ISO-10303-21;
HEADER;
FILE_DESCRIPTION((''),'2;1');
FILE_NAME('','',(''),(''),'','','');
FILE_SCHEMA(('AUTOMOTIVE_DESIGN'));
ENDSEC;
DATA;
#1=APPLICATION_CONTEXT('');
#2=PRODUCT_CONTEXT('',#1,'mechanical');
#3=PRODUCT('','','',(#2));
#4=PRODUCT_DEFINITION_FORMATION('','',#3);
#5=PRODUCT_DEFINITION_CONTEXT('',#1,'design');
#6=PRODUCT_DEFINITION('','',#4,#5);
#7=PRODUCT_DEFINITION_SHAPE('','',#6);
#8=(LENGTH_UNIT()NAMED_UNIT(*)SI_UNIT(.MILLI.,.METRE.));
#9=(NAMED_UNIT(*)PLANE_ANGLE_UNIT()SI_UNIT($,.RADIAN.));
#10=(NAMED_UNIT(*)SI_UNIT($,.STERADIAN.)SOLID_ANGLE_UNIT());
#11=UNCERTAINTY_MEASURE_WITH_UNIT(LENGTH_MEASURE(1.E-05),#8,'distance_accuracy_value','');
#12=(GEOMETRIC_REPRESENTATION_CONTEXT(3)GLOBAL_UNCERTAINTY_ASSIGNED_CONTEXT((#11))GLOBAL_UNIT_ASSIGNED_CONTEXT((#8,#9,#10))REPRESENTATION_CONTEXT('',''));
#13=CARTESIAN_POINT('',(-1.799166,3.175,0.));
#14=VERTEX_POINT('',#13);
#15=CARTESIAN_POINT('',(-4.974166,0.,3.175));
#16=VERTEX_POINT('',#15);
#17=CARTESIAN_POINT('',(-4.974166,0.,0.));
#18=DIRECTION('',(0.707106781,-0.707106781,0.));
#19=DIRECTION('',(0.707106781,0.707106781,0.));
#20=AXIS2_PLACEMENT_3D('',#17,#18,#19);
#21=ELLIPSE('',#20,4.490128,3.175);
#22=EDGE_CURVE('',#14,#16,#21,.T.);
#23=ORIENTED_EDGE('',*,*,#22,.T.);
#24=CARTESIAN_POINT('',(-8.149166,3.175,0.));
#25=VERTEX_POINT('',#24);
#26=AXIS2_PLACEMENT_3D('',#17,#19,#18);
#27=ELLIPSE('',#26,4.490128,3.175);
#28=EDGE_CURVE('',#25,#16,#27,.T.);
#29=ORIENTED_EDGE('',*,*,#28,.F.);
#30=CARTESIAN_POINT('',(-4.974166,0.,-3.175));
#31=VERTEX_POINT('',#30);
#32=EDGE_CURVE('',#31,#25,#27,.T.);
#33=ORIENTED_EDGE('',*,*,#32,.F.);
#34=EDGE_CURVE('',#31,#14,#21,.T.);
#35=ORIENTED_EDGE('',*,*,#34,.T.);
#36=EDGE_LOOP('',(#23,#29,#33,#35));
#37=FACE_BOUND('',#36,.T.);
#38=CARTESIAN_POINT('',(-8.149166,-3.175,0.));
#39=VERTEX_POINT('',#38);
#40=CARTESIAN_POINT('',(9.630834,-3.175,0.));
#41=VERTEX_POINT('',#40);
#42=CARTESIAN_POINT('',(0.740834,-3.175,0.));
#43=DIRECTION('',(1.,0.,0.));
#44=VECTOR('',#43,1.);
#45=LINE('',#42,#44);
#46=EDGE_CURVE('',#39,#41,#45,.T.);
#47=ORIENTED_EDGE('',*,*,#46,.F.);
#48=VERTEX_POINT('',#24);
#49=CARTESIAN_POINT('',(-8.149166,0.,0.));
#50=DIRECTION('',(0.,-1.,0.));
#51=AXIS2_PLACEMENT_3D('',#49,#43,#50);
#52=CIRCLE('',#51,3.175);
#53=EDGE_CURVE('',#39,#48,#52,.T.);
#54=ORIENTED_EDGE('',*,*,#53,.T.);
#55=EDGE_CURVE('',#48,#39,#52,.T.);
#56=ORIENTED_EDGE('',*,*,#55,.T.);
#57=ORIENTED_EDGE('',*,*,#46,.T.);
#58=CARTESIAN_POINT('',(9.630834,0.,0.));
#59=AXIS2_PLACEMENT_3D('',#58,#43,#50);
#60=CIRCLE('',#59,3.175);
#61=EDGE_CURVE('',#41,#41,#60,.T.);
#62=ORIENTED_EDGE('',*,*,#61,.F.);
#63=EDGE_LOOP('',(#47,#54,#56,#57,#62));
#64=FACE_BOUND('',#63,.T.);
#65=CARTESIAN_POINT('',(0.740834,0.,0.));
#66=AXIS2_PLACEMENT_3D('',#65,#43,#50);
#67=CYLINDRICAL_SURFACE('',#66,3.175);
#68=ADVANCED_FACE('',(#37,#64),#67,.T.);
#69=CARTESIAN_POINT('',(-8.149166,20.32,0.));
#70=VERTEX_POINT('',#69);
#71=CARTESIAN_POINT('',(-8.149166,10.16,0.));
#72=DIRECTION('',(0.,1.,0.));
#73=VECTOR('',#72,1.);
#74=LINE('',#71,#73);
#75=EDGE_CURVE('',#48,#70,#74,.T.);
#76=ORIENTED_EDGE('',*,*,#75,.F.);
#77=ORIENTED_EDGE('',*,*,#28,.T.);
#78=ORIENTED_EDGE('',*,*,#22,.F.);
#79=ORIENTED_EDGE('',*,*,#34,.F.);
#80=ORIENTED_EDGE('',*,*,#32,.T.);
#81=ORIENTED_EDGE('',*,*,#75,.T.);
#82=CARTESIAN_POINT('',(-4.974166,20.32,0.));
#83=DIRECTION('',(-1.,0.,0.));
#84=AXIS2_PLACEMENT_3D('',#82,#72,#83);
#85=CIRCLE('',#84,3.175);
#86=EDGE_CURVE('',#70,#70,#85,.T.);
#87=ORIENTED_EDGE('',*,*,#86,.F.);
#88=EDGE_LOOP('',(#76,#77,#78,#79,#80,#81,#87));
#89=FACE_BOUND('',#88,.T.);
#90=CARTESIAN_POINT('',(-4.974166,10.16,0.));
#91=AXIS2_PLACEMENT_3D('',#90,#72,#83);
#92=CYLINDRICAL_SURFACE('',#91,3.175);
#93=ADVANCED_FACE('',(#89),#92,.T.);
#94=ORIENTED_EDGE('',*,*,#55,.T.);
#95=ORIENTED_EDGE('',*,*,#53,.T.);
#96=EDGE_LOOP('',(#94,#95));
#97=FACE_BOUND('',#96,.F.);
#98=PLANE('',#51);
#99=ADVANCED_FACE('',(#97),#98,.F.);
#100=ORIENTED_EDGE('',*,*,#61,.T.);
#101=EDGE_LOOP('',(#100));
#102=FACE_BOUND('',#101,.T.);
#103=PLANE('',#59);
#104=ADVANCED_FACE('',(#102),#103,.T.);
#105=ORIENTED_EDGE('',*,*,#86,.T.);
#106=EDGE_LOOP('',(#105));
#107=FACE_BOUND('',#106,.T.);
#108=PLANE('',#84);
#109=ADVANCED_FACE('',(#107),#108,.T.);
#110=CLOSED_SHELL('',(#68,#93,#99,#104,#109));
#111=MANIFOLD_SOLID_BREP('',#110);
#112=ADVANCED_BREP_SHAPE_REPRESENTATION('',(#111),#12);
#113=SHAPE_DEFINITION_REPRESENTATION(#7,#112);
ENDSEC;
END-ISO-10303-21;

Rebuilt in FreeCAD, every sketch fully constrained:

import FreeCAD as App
import Part
import Sketcher

V = App.Vector
Q = App.Units.Quantity

doc = App.newDocument("Part")
body = doc.addObject("PartDesign::Body", "Body")

# Sketch on XY plane
sketch1 = body.newObject("Sketcher::SketchObject", "Sketch")
sketch1.AttachmentSupport = (doc.getObject("XY_Plane"), [""])
sketch1.MapMode = "FlatFace"
sketch1.addGeometry([
    Part.LineSegment(V(-8.1, 0, 0), V(-8.1, -3.2, 0)),
    Part.LineSegment(V(-8.1, -3.2, 0), V(9.6, -3.2, 0)),
    Part.LineSegment(V(9.6, -3.2, 0), V(9.6, 0, 0)),
    Part.LineSegment(V(9.6, 0, 0), V(-8.1, 0, 0)),
], False)
sketch1.addConstraint([
    Sketcher.Constraint("Coincident", 0, 2, 1, 1),
    Sketcher.Constraint("Coincident", 1, 2, 2, 1),
    Sketcher.Constraint("Coincident", 2, 2, 3, 1),
    Sketcher.Constraint("Coincident", 3, 2, 0, 1),
    Sketcher.Constraint("Vertical", 0),
    Sketcher.Constraint("Horizontal", 1),
    Sketcher.Constraint("Vertical", 2),
    Sketcher.Constraint("Horizontal", 3),
    Sketcher.Constraint("PointOnObject", 2, 2, -1),
    Sketcher.Constraint("DistanceX", 1, 1, 1, 2, Q("0.7 in")),
    Sketcher.Constraint("DistanceY", 0, 2, 0, 1, Q("0.125 in")),
    Sketcher.Constraint("DistanceX", 0, 2, -1, 1, Q("8.149166 mm")),
])
revolution = body.newObject("PartDesign::Revolution", "Revolution")
revolution.Profile = sketch1
revolution.ReferenceAxis = (sketch1, ["H_Axis"])
revolution.Angle = 360

# Sketch on XY plane
sketch2 = body.newObject("Sketcher::SketchObject", "Sketch001")
sketch2.AttachmentSupport = (doc.getObject("XY_Plane"), [""])
sketch2.MapMode = "FlatFace"
sketch2.addGeometry([
    Part.LineSegment(V(-8.1, 20.3, 0), V(-8.1, 0, 0)),
    Part.LineSegment(V(-8.1, 0, 0), V(-5, 0, 0)),
    Part.LineSegment(V(-5, 0, 0), V(-5, 20.3, 0)),
    Part.LineSegment(V(-5, 20.3, 0), V(-8.1, 20.3, 0)),
], False)
sketch2.addGeometry(Part.LineSegment(V(-5, 0, 0), V(-5, 20.3, 0)), True)  # axis
sketch2.addConstraint([
    Sketcher.Constraint("Coincident", 0, 2, 1, 1),
    Sketcher.Constraint("Coincident", 1, 2, 2, 1),
    Sketcher.Constraint("Coincident", 2, 2, 3, 1),
    Sketcher.Constraint("Coincident", 3, 2, 0, 1),
    Sketcher.Constraint("Vertical", 0),
    Sketcher.Constraint("Horizontal", 1),
    Sketcher.Constraint("Vertical", 2),
    Sketcher.Constraint("Horizontal", 3),
    Sketcher.Constraint("Vertical", 4),
    Sketcher.Constraint("Coincident", 4, 1, 1, 2),
    Sketcher.Constraint("PointOnObject", 0, 2, -1),
    Sketcher.Constraint("Horizontal", 3, 2, 4, 2),
    Sketcher.Constraint("DistanceY", 0, 2, 0, 1, Q("0.8 in")),
    Sketcher.Constraint("DistanceX", 1, 1, 1, 2, Q("0.125 in")),
    Sketcher.Constraint("DistanceX", 0, 2, -1, 1, Q("8.149166 mm")),
])
revolution2 = body.newObject("PartDesign::Revolution", "Revolution001")
revolution2.Profile = sketch2
revolution2.ReferenceAxis = (sketch2, ["Axis0"])
revolution2.Angle = 360

doc.recompute()
